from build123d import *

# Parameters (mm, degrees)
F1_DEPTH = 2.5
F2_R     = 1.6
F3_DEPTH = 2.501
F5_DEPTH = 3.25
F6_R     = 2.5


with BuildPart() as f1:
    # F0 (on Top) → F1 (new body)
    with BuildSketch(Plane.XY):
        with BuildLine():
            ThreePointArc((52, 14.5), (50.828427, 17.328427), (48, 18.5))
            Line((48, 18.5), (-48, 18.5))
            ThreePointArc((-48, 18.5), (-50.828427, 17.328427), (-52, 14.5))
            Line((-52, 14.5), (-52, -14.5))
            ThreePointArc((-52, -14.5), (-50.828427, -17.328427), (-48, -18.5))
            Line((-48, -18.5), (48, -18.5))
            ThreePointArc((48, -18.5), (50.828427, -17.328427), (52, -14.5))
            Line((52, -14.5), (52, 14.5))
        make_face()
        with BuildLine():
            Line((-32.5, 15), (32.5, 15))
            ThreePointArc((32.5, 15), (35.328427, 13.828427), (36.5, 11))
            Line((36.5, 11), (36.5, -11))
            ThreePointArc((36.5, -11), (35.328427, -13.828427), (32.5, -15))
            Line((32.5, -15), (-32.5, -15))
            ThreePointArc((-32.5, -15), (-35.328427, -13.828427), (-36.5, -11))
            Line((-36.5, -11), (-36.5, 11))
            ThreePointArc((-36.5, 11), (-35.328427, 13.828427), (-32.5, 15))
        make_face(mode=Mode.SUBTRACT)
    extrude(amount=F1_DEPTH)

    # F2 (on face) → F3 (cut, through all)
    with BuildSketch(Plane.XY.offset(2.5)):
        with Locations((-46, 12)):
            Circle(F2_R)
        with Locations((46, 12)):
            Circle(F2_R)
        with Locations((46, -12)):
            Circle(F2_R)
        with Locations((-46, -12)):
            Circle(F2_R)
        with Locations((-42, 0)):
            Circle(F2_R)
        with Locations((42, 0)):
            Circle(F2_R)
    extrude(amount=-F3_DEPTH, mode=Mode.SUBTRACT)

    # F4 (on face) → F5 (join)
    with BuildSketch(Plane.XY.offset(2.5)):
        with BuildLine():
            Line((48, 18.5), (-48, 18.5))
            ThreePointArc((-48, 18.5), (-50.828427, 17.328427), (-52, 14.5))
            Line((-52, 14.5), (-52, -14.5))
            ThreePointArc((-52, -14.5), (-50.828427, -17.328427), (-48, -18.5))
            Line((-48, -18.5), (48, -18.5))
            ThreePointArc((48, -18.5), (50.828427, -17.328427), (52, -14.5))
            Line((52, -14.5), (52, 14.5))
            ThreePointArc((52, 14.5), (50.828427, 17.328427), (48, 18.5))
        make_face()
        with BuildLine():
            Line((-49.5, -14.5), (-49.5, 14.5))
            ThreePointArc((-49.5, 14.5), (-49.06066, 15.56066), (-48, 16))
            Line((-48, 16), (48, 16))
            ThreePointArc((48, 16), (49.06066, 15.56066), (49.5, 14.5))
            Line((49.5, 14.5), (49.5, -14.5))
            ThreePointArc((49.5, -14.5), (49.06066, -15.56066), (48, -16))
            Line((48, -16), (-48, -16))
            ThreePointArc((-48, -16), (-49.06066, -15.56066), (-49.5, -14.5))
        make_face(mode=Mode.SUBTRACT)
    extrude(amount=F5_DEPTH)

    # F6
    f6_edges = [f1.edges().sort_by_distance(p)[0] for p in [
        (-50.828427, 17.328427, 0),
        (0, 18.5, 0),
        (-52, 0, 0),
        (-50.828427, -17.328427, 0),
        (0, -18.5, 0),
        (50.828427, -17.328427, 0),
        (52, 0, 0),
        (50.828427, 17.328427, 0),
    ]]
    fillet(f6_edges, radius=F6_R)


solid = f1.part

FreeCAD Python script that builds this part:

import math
import FreeCAD as App
import Part
import Sketcher


def edges_at(feature, points):
    """Names of the edges that pass closest to the given points."""
    edges = feature.Shape.Edges
    near = lambda p: min(range(len(edges)), key=lambda i: edges[i].distToShape(Part.Vertex(*p))[0])
    return sorted({f"Edge{near(p) + 1}" for p in points})

doc = App.newDocument("Part")
params = doc.addObject("Spreadsheet::Sheet", "Params")
for row, (alias, value) in enumerate([
    ("sketch1_radius", "4 mm"),
    ("sketch1_width", "96 mm"),
    ("sketch1_width2", "65 mm"),
    ("sketch1_height", "29 mm"),
    ("sketch1_height2", "22 mm"),
    ("pad1_length", "2.5 mm"),
    ("sketch2_diameter", "3.2 mm"),
    ("sketch3_radius", "4 mm"),
    ("sketch3_radius2", "1.500001 mm"),
    ("sketch3_width", "96 mm"),
    ("sketch3_height", "29 mm"),
    ("pad2_length", "3.25 mm"),
    ("fillet_radius", "2.5 mm"),
], start=1):
    params.set(f"A{row}", alias)
    params.set(f"B{row}", "=" + value)
    params.setAlias(f"B{row}", alias)

body = doc.addObject("PartDesign::Body", "Body")

# Sketch on XY plane
sketch1 = body.newObject("Sketcher::SketchObject", "Sketch")
sketch1.AttachmentSupport = (doc.getObject("XY_Plane"), [""])
sketch1.MapMode = "FlatFace"
sketch1.addGeometry(Part.ArcOfCircle(Part.Circle(App.Vector(48, 14.5, 0), App.Vector(0, 0, 1), 4), math.radians(0), math.radians(90)), False)
sketch1.addGeometry(Part.LineSegment(App.Vector(48, 18.5, 0), App.Vector(-48, 18.5, 0)), False)
sketch1.addGeometry(Part.ArcOfCircle(Part.Circle(App.Vector(-48, 14.5, 0), App.Vector(0, 0, 1), 4), math.radians(90), math.radians(180)), False)
sketch1.addGeometry(Part.LineSegment(App.Vector(-52, 14.5, 0), App.Vector(-52, -14.5, 0)), False)
sketch1.addGeometry(Part.ArcOfCircle(Part.Circle(App.Vector(-48, -14.5, 0), App.Vector(0, 0, 1), 4), math.radians(-180), math.radians(-90)), False)
sketch1.addGeometry(Part.LineSegment(App.Vector(-48, -18.5, 0), App.Vector(48, -18.5, 0)), False)
sketch1.addGeometry(Part.ArcOfCircle(Part.Circle(App.Vector(48, -14.5, 0), App.Vector(0, 0, 1), 4), math.radians(-90), math.radians(0)), False)
sketch1.addGeometry(Part.LineSegment(App.Vector(52, -14.5, 0), App.Vector(52, 14.5, 0)), False)
sketch1.addGeometry(Part.ArcOfCircle(Part.Circle(App.Vector(-32.5, 11, 0), App.Vector(0, 0, 1), 4), math.radians(90), math.radians(180)), False)
sketch1.addGeometry(Part.LineSegment(App.Vector(-32.5, 15, 0), App.Vector(32.5, 15, 0)), False)
sketch1.addGeometry(Part.ArcOfCircle(Part.Circle(App.Vector(32.5, 11, 0), App.Vector(0, 0, 1), 4), math.radians(0), math.radians(90)), False)
sketch1.addGeometry(Part.LineSegment(App.Vector(36.5, 11, 0), App.Vector(36.5, -11, 0)), False)
sketch1.addGeometry(Part.ArcOfCircle(Part.Circle(App.Vector(32.5, -11, 0), App.Vector(0, 0, 1), 4), math.radians(-90), math.radians(0)), False)
sketch1.addGeometry(Part.LineSegment(App.Vector(32.5, -15, 0), App.Vector(-32.5, -15, 0)), False)
sketch1.addGeometry(Part.ArcOfCircle(Part.Circle(App.Vector(-32.5, -11, 0), App.Vector(0, 0, 1), 4), math.radians(-180), math.radians(-90)), False)
sketch1.addGeometry(Part.LineSegment(App.Vector(-36.5, -11, 0), App.Vector(-36.5, 11, 0)), False)
sketch1.addConstraint(Sketcher.Constraint("Tangent", 0, 2, 1, 1))
sketch1.addConstraint(Sketcher.Constraint("Tangent", 1, 2, 2, 1))
sketch1.addConstraint(Sketcher.Constraint("Tangent", 2, 2, 3, 1))
sketch1.addConstraint(Sketcher.Constraint("Tangent", 3, 2, 4, 1))
sketch1.addConstraint(Sketcher.Constraint("Tangent", 4, 2, 5, 1))
sketch1.addConstraint(Sketcher.Constraint("Tangent", 5, 2, 6, 1))
sketch1.addConstraint(Sketcher.Constraint("Tangent", 6, 2, 7, 1))
sketch1.addConstraint(Sketcher.Constraint("Tangent", 7, 2, 0, 1))
sketch1.addConstraint(Sketcher.Constraint("Tangent", 8, 1, 9, 1))
sketch1.addConstraint(Sketcher.Constraint("Tangent", 9, 2, 10, 2))
sketch1.addConstraint(Sketcher.Constraint("Tangent", 10, 1, 11, 1))
sketch1.addConstraint(Sketcher.Constraint("Tangent", 11, 2, 12, 2))
sketch1.addConstraint(Sketcher.Constraint("Tangent", 12, 1, 13, 1))
sketch1.addConstraint(Sketcher.Constraint("Tangent", 13, 2, 14, 2))
sketch1.addConstraint(Sketcher.Constraint("Tangent", 14, 1, 15, 1))
sketch1.addConstraint(Sketcher.Constraint("Tangent", 15, 2, 8, 2))
sketch1.addConstraint(Sketcher.Constraint("Horizontal", 1))
sketch1.addConstraint(Sketcher.Constraint("Vertical", 3))
sketch1.addConstraint(Sketcher.Constraint("Horizontal", 5))
sketch1.addConstraint(Sketcher.Constraint("Vertical", 7))
sketch1.addConstraint(Sketcher.Constraint("Horizontal", 9))
sketch1.addConstraint(Sketcher.Constraint("Vertical", 11))
sketch1.addConstraint(Sketcher.Constraint("Horizontal", 13))
sketch1.addConstraint(Sketcher.Constraint("Vertical", 15))
sketch1.addConstraint(Sketcher.Constraint("Equal", 0, 2))
sketch1.addConstraint(Sketcher.Constraint("Equal", 2, 4))
sketch1.addConstraint(Sketcher.Constraint("Equal", 4, 6))
sketch1.addConstraint(Sketcher.Constraint("Equal", 6, 8))
sketch1.addConstraint(Sketcher.Constraint("Equal", 8, 10))
sketch1.addConstraint(Sketcher.Constraint("Equal", 10, 12))
sketch1.addConstraint(Sketcher.Constraint("Equal", 12, 14))
sketch1.addConstraint(Sketcher.Constraint("Symmetric", 0, 3, 4, 3, -1, 1))
sketch1.addConstraint(Sketcher.Constraint("Symmetric", 8, 3, 12, 3, -1, 1))
sketch1.addConstraint(Sketcher.Constraint("Radius", 0, 4.0))
sketch1.addConstraint(Sketcher.Constraint("DistanceX", 1, 2, 1, 1, 96.0))
sketch1.addConstraint(Sketcher.Constraint("DistanceX", 9, 1, 9, 2, 65.0))
sketch1.addConstraint(Sketcher.Constraint("DistanceY", 3, 2, 3, 1, 29.0))
sketch1.addConstraint(Sketcher.Constraint("DistanceY", 11, 2, 11, 1, 22.0))
sketch1.setExpression("Constraints[33]", "Params.sketch1_radius")
sketch1.setExpression("Constraints[34]", "Params.sketch1_width")
sketch1.setExpression("Constraints[35]", "Params.sketch1_width2")
sketch1.setExpression("Constraints[36]", "Params.sketch1_height")
sketch1.setExpression("Constraints[37]", "Params.sketch1_height2")
pad1 = body.newObject("PartDesign::Pad", "Pad")
pad1.Profile = sketch1
pad1.setExpression("Length", "Params.pad1_length")

# Sketch on XY plane
sketch2 = body.newObject("Sketcher::SketchObject", "Sketch001")
sketch2.AttachmentSupport = (doc.getObject("XY_Plane"), [""])
sketch2.MapMode = "FlatFace"
sketch2.AttachmentOffset = App.Placement(App.Vector(0, 0, 2.5), App.Rotation())
sketch2.addGeometry(Part.Circle(App.Vector(-46, 12, 0), App.Vector(0, 0, 1), 1.6), False)
sketch2.addGeometry(Part.Circle(App.Vector(46, 12, 0), App.Vector(0, 0, 1), 1.6), False)
sketch2.addGeometry(Part.Circle(App.Vector(46, -12, 0), App.Vector(0, 0, 1), 1.6), False)
sketch2.addGeometry(Part.Circle(App.Vector(-46, -12, 0), App.Vector(0, 0, 1), 1.6), False)
sketch2.addGeometry(Part.Circle(App.Vector(-42, 0, 0), App.Vector(0, 0, 1), 1.6), False)
sketch2.addGeometry(Part.Circle(App.Vector(42, 0, 0), App.Vector(0, 0, 1), 1.6), False)
sketch2.addConstraint(Sketcher.Constraint("Equal", 0, 1))
sketch2.addConstraint(Sketcher.Constraint("Equal", 1, 2))
sketch2.addConstraint(Sketcher.Constraint("Equal", 2, 3))
sketch2.addConstraint(Sketcher.Constraint("Equal", 3, 4))
sketch2.addConstraint(Sketcher.Constraint("Equal", 4, 5))
sketch2.addConstraint(Sketcher.Constraint("Symmetric", 0, 3, 2, 3, -1, 1))
sketch2.addConstraint(Sketcher.Constraint("Symmetric", 1, 3, 3, 3, -1, 1))
sketch2.addConstraint(Sketcher.Constraint("Symmetric", 4, 3, 5, 3, -1, 1))
sketch2.addConstraint(Sketcher.Constraint("Symmetric", 0, 3, 1, 3, -2))
sketch2.addConstraint(Sketcher.Constraint("PointOnObject", 4, 3, -1))
sketch2.addConstraint(Sketcher.Constraint("Diameter", 0, 3.2))
sketch2.addConstraint(Sketcher.Constraint("DistanceX", 0, 3, -1, 1, 46.0))
sketch2.addConstraint(Sketcher.Constraint("DistanceY", -1, 1, 0, 3, 12.0))
sketch2.addConstraint(Sketcher.Constraint("DistanceX", 4, 3, -1, 1, 42.0))
sketch2.setExpression("Constraints[10]", "Params.sketch2_diameter")
pocket1 = body.newObject("PartDesign::Pocket", "Pocket")
pocket1.Profile = sketch2
pocket1.Type = "ThroughAll"

# Sketch on XY plane
sketch3 = body.newObject("Sketcher::SketchObject", "Sketch002")
sketch3.AttachmentSupport = (doc.getObject("XY_Plane"), [""])
sketch3.MapMode = "FlatFace"
sketch3.AttachmentOffset = App.Placement(App.Vector(0, 0, 2.5), App.Rotation())
sketch3.addGeometry(Part.LineSegment(App.Vector(48, 18.5, 0), App.Vector(-48, 18.5, 0)), False)
sketch3.addGeometry(Part.ArcOfCircle(Part.Circle(App.Vector(-48, 14.5, 0), App.Vector(0, 0, 1), 4), math.radians(90), math.radians(180)), False)
sketch3.addGeometry(Part.LineSegment(App.Vector(-52, 14.5, 0), App.Vector(-52, -14.5, 0)), False)
sketch3.addGeometry(Part.ArcOfCircle(Part.Circle(App.Vector(-48, -14.5, 0), App.Vector(0, 0, 1), 4), math.radians(-180), math.radians(-90)), False)
sketch3.addGeometry(Part.LineSegment(App.Vector(-48, -18.5, 0), App.Vector(48, -18.5, 0)), False)
sketch3.addGeometry(Part.ArcOfCircle(Part.Circle(App.Vector(48, -14.5, 0), App.Vector(0, 0, 1), 4), math.radians(-90), math.radians(0)), False)
sketch3.addGeometry(Part.LineSegment(App.Vector(52, -14.5, 0), App.Vector(52, 14.5, 0)), False)
sketch3.addGeometry(Part.ArcOfCircle(Part.Circle(App.Vector(48, 14.5, 0), App.Vector(0, 0, 1), 4), math.radians(0), math.radians(90)), False)
sketch3.addGeometry(Part.ArcOfCircle(Part.Circle(App.Vector(-48, -14.5, 0), App.Vector(0, 0, 1), 1.5), math.radians(-180), math.radians(-90)), False)
sketch3.addGeometry(Part.LineSegment(App.Vector(-49.5, -14.5, 0), App.Vector(-49.5, 14.5, 0)), False)
sketch3.addGeometry(Part.ArcOfCircle(Part.Circle(App.Vector(-48, 14.5, 0), App.Vector(0, 0, 1), 1.5), math.radians(90), math.radians(180)), False)
sketch3.addGeometry(Part.LineSegment(App.Vector(-48, 16, 0), App.Vector(48, 16, 0)), False)
sketch3.addGeometry(Part.ArcOfCircle(Part.Circle(App.Vector(48, 14.5, 0), App.Vector(0, 0, 1), 1.5), math.radians(0), math.radians(90)), False)
sketch3.addGeometry(Part.LineSegment(App.Vector(49.5, 14.5, 0), App.Vector(49.5, -14.5, 0)), False)
sketch3.addGeometry(Part.ArcOfCircle(Part.Circle(App.Vector(48, -14.5, 0), App.Vector(0, 0, 1), 1.5), math.radians(-90), math.radians(0)), False)
sketch3.addGeometry(Part.LineSegment(App.Vector(48, -16, 0), App.Vector(-48, -16, 0)), False)
sketch3.addConstraint(Sketcher.Constraint("Tangent", 0, 2, 1, 1))
sketch3.addConstraint(Sketcher.Constraint("Tangent", 1, 2, 2, 1))
sketch3.addConstraint(Sketcher.Constraint("Tangent", 2, 2, 3, 1))
sketch3.addConstraint(Sketcher.Constraint("Tangent", 3, 2, 4, 1))
sketch3.addConstraint(Sketcher.Constraint("Tangent", 4, 2, 5, 1))
sketch3.addConstraint(Sketcher.Constraint("Tangent", 5, 2, 6, 1))
sketch3.addConstraint(Sketcher.Constraint("Tangent", 6, 2, 7, 1))
sketch3.addConstraint(Sketcher.Constraint("Tangent", 7, 2, 0, 1))
sketch3.addConstraint(Sketcher.Constraint("Tangent", 8, 1, 9, 1))
sketch3.addConstraint(Sketcher.Constraint("Tangent", 9, 2, 10, 2))
sketch3.addConstraint(Sketcher.Constraint("Tangent", 10, 1, 11, 1))
sketch3.addConstraint(Sketcher.Constraint("Tangent", 11, 2, 12, 2))
sketch3.addConstraint(Sketcher.Constraint("Tangent", 12, 1, 13, 1))
sketch3.addConstraint(Sketcher.Constraint("Tangent", 13, 2, 14, 2))
sketch3.addConstraint(Sketcher.Constraint("Tangent", 14, 1, 15, 1))
sketch3.addConstraint(Sketcher.Constraint("Tangent", 15, 2, 8, 2))
sketch3.addConstraint(Sketcher.Constraint("Horizontal", 0))
sketch3.addConstraint(Sketcher.Constraint("Vertical", 2))
sketch3.addConstraint(Sketcher.Constraint("Horizontal", 4))
sketch3.addConstraint(Sketcher.Constraint("Vertical", 6))
sketch3.addConstraint(Sketcher.Constraint("Vertical", 9))
sketch3.addConstraint(Sketcher.Constraint("Horizontal", 11))
sketch3.addConstraint(Sketcher.Constraint("Vertical", 13))
sketch3.addConstraint(Sketcher.Constraint("Horizontal", 15))
sketch3.addConstraint(Sketcher.Constraint("Coincident", 8, 3, 3, 3))
sketch3.addConstraint(Sketcher.Constraint("Coincident", 10, 3, 1, 3))
sketch3.addConstraint(Sketcher.Constraint("Coincident", 12, 3, 7, 3))
sketch3.addConstraint(Sketcher.Constraint("Equal", 1, 3))
sketch3.addConstraint(Sketcher.Constraint("Equal", 3, 5))
sketch3.addConstraint(Sketcher.Constraint("Equal", 5, 7))
sketch3.addConstraint(Sketcher.Constraint("Equal", 12, 14))
sketch3.addConstraint(Sketcher.Constraint("Symmetric", 1, 3, 5, 3, -1, 1))
sketch3.addConstraint(Sketcher.Constraint("Radius", 1, 4.0))
sketch3.addConstraint(Sketcher.Constraint("Radius", 8, 1.500001))
sketch3.addConstraint(Sketcher.Constraint("DistanceX", 0, 2, 0, 1, 96.0))
sketch3.addConstraint(Sketcher.Constraint("DistanceY", 2, 2, 2, 1, 29.0))
sketch3.setExpression("Constraints[32]", "Params.sketch3_radius")
sketch3.setExpression("Constraints[33]", "Params.sketch3_radius2")
sketch3.setExpression("Constraints[34]", "Params.sketch3_width")
sketch3.setExpression("Constraints[35]", "Params.sketch3_height")
pad2 = body.newObject("PartDesign::Pad", "Pad001")
pad2.Profile = sketch3
pad2.setExpression("Length", "Params.pad2_length")
doc.recompute()

fillet = body.newObject("PartDesign::Fillet", "Fillet")
fillet.Base = (pad2, edges_at(pad2, [
    (-50.828, 17.328, 0),
    (0, 18.5, 0),
    (-52, 0, 0),
    (-50.828, -17.328, 0),
    (0, -18.5, 0),
    (50.828, -17.328, 0),
    (52, 0, 0),
    (50.828, 17.328, 0),
]))
fillet.setExpression("Radius", "Params.fillet_radius")

doc.recompute()
